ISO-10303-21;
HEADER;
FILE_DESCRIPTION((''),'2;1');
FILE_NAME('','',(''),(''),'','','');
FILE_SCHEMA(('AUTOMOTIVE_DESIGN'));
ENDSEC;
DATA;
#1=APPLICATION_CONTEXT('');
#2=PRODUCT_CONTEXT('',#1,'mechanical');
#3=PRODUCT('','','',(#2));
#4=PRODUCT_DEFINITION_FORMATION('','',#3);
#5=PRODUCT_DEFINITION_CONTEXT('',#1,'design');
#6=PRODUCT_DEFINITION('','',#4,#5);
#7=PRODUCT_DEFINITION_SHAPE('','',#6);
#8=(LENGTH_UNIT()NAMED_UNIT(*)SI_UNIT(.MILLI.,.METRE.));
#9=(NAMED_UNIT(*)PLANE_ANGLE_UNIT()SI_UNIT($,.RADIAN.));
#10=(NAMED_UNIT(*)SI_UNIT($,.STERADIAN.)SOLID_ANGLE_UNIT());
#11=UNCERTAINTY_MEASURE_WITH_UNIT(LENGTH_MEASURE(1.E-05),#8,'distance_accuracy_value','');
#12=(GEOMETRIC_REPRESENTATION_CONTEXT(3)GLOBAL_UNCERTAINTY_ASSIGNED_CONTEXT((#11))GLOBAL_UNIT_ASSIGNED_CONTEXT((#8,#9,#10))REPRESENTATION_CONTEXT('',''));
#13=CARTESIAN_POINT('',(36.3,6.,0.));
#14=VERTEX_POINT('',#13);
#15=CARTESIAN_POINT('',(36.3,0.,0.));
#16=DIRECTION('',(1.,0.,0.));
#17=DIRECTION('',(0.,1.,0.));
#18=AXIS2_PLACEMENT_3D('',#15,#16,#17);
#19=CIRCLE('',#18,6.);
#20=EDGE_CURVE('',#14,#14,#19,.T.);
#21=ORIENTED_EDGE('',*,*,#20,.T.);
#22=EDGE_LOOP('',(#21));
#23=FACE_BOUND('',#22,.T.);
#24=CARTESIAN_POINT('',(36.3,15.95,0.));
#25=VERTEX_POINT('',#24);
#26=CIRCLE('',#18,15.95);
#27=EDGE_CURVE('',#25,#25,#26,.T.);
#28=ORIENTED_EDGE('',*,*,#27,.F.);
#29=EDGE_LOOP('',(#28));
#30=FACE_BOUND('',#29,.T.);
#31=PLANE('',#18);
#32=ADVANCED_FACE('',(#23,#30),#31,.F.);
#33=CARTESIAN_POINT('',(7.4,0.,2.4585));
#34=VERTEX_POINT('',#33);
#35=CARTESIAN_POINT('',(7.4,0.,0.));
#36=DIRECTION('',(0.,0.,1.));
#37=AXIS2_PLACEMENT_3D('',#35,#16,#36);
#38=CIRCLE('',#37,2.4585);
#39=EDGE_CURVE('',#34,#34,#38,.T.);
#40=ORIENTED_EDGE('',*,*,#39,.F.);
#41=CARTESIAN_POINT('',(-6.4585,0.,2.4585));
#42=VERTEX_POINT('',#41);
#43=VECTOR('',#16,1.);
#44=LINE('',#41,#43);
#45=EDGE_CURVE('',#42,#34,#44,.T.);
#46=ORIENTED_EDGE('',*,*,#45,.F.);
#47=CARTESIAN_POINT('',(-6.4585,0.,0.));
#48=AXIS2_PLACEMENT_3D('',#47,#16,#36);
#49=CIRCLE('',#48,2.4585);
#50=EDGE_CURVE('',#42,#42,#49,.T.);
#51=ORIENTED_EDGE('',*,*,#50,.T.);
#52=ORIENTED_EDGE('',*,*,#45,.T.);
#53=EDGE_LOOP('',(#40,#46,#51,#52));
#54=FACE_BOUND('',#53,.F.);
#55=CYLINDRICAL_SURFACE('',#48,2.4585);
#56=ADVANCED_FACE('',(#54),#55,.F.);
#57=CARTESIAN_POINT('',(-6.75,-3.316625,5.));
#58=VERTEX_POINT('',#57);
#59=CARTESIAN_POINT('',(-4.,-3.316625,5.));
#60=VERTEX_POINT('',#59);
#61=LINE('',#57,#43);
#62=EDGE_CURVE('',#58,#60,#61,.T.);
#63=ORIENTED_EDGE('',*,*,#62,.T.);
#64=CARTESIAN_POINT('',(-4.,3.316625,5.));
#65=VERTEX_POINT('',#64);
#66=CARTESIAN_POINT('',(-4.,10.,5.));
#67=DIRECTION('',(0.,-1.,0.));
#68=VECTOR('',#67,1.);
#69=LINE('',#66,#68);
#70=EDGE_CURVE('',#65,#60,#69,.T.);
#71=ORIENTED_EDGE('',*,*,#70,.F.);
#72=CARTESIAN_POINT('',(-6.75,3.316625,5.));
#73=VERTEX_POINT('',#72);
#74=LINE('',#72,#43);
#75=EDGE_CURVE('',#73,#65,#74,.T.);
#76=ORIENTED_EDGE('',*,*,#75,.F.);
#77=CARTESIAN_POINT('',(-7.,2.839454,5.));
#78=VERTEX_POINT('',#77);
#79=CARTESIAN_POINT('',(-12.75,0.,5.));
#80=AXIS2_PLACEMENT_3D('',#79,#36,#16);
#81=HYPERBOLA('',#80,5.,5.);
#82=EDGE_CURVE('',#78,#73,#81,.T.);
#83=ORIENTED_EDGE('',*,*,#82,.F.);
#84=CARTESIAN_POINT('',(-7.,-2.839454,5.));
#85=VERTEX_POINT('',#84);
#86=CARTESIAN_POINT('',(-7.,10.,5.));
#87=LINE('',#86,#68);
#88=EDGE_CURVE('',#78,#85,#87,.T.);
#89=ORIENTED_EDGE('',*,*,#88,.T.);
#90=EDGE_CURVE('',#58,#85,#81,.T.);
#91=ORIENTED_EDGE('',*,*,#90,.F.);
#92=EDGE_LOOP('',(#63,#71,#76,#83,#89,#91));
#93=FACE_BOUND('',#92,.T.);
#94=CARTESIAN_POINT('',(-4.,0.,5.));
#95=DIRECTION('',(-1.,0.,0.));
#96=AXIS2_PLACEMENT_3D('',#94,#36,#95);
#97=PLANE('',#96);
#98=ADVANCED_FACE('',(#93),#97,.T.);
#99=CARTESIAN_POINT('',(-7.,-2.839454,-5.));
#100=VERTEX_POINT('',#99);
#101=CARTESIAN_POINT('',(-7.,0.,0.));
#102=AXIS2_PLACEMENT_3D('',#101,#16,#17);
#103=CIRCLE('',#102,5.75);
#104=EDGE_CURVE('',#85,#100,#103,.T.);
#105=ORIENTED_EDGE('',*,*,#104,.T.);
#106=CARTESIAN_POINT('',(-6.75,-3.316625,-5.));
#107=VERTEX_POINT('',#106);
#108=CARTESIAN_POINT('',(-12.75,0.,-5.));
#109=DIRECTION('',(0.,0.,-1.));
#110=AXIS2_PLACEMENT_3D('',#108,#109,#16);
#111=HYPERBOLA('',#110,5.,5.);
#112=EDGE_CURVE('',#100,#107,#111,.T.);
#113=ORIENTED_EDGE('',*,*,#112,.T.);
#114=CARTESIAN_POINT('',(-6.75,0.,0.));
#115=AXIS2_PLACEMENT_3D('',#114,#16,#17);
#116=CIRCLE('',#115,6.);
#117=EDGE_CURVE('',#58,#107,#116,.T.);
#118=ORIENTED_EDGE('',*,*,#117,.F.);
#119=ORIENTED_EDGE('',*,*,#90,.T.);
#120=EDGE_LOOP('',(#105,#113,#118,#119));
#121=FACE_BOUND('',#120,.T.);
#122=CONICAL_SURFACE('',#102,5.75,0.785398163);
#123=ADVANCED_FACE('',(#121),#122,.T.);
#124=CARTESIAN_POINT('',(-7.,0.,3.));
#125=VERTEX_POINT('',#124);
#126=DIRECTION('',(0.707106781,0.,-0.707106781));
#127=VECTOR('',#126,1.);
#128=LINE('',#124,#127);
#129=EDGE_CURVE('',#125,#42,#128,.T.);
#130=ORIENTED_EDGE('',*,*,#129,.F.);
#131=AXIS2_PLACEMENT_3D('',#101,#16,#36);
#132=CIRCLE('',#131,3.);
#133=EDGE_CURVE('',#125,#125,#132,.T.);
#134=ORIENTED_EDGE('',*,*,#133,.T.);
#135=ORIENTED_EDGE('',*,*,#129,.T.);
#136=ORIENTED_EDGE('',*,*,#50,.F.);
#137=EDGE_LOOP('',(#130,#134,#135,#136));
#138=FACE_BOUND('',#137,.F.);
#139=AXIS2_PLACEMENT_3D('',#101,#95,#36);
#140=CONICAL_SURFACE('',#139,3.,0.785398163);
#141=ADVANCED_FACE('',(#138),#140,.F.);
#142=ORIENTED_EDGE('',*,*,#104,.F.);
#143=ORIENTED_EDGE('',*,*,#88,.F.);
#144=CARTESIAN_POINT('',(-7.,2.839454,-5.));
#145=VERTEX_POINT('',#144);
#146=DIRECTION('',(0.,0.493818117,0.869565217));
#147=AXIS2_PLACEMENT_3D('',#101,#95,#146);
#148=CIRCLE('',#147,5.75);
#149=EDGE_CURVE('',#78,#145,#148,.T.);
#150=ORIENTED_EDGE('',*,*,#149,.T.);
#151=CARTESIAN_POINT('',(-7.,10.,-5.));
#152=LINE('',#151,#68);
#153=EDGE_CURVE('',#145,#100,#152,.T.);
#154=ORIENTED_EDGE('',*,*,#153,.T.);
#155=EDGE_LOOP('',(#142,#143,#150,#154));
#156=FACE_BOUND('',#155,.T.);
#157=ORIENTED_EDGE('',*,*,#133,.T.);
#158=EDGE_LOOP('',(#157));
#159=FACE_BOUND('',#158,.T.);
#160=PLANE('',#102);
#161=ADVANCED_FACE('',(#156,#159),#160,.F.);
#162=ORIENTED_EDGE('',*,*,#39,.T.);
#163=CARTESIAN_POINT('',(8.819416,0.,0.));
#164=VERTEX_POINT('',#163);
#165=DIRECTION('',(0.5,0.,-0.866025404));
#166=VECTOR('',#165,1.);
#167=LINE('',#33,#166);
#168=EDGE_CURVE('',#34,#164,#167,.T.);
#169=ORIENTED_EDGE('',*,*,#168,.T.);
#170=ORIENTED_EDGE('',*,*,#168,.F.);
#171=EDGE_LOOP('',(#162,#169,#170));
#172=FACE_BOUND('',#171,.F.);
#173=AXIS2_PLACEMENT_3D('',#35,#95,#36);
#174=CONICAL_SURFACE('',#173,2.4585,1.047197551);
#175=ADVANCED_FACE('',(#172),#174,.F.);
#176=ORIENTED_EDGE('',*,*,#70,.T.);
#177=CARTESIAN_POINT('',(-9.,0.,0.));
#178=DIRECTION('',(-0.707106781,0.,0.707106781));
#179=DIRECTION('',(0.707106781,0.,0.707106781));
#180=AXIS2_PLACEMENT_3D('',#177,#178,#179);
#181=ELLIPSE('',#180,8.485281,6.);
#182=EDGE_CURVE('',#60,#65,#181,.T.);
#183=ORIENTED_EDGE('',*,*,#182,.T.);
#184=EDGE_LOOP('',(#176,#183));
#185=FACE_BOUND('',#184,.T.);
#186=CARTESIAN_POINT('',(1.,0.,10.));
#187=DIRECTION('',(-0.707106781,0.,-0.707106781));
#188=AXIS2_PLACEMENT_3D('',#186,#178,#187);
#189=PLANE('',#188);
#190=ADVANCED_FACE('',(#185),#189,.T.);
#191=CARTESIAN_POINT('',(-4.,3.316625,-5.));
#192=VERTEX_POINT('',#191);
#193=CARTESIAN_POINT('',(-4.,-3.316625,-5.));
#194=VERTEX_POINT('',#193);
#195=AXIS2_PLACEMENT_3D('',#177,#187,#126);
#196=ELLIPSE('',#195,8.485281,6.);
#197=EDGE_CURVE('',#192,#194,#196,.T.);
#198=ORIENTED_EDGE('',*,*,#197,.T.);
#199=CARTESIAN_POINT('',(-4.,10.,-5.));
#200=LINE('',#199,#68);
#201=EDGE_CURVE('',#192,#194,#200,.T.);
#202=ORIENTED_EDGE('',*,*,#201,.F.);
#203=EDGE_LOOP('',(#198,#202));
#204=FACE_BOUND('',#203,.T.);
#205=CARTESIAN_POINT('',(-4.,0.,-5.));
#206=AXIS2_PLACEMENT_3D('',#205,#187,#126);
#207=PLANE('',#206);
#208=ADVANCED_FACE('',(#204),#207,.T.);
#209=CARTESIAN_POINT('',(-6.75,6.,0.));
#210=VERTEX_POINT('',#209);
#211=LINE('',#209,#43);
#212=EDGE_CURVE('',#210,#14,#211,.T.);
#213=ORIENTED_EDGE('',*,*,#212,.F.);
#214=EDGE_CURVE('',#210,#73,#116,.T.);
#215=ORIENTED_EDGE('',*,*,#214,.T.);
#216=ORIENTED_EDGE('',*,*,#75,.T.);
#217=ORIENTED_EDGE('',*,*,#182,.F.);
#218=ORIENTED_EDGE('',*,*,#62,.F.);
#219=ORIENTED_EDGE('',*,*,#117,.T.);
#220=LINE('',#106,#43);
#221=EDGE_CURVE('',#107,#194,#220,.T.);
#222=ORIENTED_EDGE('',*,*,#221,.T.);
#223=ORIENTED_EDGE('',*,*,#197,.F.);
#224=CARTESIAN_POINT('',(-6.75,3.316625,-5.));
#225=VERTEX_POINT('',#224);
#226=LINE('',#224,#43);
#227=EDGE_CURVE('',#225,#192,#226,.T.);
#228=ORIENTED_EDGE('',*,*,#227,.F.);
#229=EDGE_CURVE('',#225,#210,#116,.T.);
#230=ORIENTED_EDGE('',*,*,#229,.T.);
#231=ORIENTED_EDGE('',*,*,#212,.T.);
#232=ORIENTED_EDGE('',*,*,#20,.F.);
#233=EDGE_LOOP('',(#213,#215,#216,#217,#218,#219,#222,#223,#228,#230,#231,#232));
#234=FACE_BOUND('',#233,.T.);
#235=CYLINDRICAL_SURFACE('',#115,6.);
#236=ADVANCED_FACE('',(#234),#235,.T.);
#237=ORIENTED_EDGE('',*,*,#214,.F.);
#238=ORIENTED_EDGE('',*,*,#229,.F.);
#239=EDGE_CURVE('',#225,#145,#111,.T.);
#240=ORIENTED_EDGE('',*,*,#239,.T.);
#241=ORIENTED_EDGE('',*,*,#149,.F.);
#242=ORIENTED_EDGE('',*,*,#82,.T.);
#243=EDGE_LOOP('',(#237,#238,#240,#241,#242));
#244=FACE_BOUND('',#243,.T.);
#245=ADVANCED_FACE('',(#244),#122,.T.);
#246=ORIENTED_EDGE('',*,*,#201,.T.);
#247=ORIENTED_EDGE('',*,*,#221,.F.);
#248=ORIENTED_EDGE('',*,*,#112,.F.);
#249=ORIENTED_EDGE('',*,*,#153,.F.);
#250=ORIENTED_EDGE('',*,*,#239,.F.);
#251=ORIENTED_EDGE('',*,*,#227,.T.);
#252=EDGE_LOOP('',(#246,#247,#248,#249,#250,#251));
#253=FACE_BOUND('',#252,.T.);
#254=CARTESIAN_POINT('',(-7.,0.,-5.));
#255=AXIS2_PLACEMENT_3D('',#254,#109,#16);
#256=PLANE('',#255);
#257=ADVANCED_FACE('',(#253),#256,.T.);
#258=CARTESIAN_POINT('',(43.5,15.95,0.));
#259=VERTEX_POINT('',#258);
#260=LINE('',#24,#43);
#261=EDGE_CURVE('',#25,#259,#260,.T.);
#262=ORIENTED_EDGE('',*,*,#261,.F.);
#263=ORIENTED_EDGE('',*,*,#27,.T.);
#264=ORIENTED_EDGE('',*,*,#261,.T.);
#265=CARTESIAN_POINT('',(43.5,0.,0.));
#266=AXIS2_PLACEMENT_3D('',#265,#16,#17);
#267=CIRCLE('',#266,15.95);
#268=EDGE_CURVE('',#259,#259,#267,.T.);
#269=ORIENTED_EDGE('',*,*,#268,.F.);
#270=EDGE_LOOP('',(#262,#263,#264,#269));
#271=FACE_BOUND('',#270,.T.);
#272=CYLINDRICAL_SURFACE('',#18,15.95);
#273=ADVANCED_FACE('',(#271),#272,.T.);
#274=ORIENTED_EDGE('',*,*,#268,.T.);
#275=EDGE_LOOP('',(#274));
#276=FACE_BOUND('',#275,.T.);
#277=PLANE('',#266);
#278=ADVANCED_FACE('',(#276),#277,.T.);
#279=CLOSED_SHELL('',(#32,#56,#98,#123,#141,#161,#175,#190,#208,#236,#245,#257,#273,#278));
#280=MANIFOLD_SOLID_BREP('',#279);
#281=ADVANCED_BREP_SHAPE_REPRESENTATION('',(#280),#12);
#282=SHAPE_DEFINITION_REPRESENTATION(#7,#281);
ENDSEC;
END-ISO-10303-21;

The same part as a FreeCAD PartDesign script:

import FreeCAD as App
import Part
import Sketcher
from FreeCAD import Vector
Q = App.Units.Quantity


def add_polygon(sketch, points):
    """Adds a closed chain of lines whose ends are joined by coincident constraints."""
    first, n = sketch.GeometryCount, len(points)
    for a, b in zip(points, points[1:] + points[:1]):
        sketch.addGeometry(Part.LineSegment(App.Vector(*a, 0), App.Vector(*b, 0)), False)
    for i in range(n):
        sketch.addConstraint(Sketcher.Constraint("Coincident", first + i, 2, first + (i + 1) % n, 1))

doc = App.newDocument("Part")
body = doc.addObject("PartDesign::Body", "Body")

sketch1 = body.newObject("Sketcher::SketchObject", "Sketch")
sketch1.AttachmentSupport = (doc.getObject("XY_Plane"), [""])
sketch1.MapMode = "FlatFace"
add_polygon(sketch1, [(-7, 0), (0, 0), (0, 6), (-6.75, 6), (-7, 5.75)])
sketch1.addConstraint(Sketcher.Constraint("Horizontal", 0))
sketch1.addConstraint(Sketcher.Constraint("Vertical", 1))
sketch1.addConstraint(Sketcher.Constraint("Horizontal", 2))
sketch1.addConstraint(Sketcher.Constraint("Vertical", 4))
sketch1.addConstraint(Sketcher.Constraint("Coincident", 0, 2, -1, 1))
sketch1.addConstraint(Sketcher.Constraint("DistanceX", 0, 1, 0, 2, 7.0))
sketch1.addConstraint(Sketcher.Constraint("DistanceY", 1, 1, 1, 2, 6.0))
sketch1.addConstraint(Sketcher.Constraint("Angle", 3, Q("-135 deg")))
sketch1.addConstraint(Sketcher.Constraint("DistanceX", 2, 2, 2, 1, 6.75))
revolution = body.newObject("PartDesign::Revolution", "Revolution")
revolution.Profile = sketch1
revolution.ReferenceAxis = (sketch1, ["H_Axis"])
revolution.Angle = 360

sketch2 = body.newObject("Sketcher::SketchObject", "Sketch001")
sketch2.AttachmentSupport = (doc.getObject("XY_Plane"), [""])
sketch2.MapMode = "FlatFace"
add_polygon(sketch2, [(0, 0), (43.5, 0), (43.5, 15.95), (36.3, 15.95), (36.3, 6), (0, 6)])
sketch2.addConstraint(Sketcher.Constraint("Horizontal", 0))
sketch2.addConstraint(Sketcher.Constraint("Vertical", 1))
sketch2.addConstraint(Sketcher.Constraint("Horizontal", 2))
sketch2.addConstraint(Sketcher.Constraint("Vertical", 3))
sketch2.addConstraint(Sketcher.Constraint("Horizontal", 4))
sketch2.addConstraint(Sketcher.Constraint("Vertical", 5))
sketch2.addConstraint(Sketcher.Constraint("Coincident", 5, 2, -1, 1))
sketch2.addConstraint(Sketcher.Constraint("DistanceY", 5, 2, 5, 1, 6.0))
sketch2.addConstraint(Sketcher.Constraint("DistanceX", 0, 1, 0, 2, 43.5))
sketch2.addConstraint(Sketcher.Constraint("DistanceX", 2, 2, 2, 1, 7.2))
sketch2.addConstraint(Sketcher.Constraint("DistanceY", 1, 1, 1, 2, 15.95))
revolution2 = body.newObject("PartDesign::Revolution", "Revolution001")
revolution2.Profile = sketch2
revolution2.ReferenceAxis = (sketch2, ["H_Axis"])
revolution2.Angle = 360

sketch3 = body.newObject("Sketcher::SketchObject", "Sketch002")
sketch3.AttachmentSupport = (doc.getObject("XZ_Plane"), [""])
sketch3.MapMode = "FlatFace"
add_polygon(sketch3, [(1, -10), (-17, -10), (-17, 10), (1, 10), (-4, 5), (-7, 5), (-7, -5), (-4, -5)])
sketch3.addConstraint(Sketcher.Constraint("Horizontal", 0))
sketch3.addConstraint(Sketcher.Constraint("Vertical", 1))
sketch3.addConstraint(Sketcher.Constraint("Horizontal", 2))
sketch3.addConstraint(Sketcher.Constraint("Horizontal", 4))
sketch3.addConstraint(Sketcher.Constraint("Vertical", 5))
sketch3.addConstraint(Sketcher.Constraint("Horizontal", 6))
sketch3.addConstraint(Sketcher.Constraint("Symmetric", 3, 2, 6, 2, -1))
sketch3.addConstraint(Sketcher.Constraint("Symmetric", 2, 2, 7, 2, -1))
sketch3.addConstraint(Sketcher.Constraint("Perpendicular", 3, 7))
sketch3.addConstraint(Sketcher.Constraint("DistanceX", 0, 2, 0, 1, 18.0))
sketch3.addConstraint(Sketcher.Constraint("DistanceX", 4, 2, 4, 1, 3.0))
sketch3.addConstraint(Sketcher.Constraint("DistanceY", 1, 1, 1, 2, 20.0))
sketch3.addConstraint(Sketcher.Constraint("DistanceY", 5, 2, 5, 1, 10.0))
sketch3.addConstraint(Sketcher.Constraint("DistanceX", 0, 2, -1, 1, 17.0))
pocket1 = body.newObject("PartDesign::Pocket", "Pocket")
pocket1.Profile = sketch3
pocket1.Length = 20
pocket1.Midplane = True

sketch4 = body.newObject("Sketcher::SketchObject", "Sketch003")
sketch4.AttachmentSupport = (doc.getObject("YZ_Plane"), [""])
sketch4.MapMode = "FlatFace"
sketch4.AttachmentOffset = App.Placement(Vector(0, 0, -7), App.Rotation())
sketch4.addGeometry(Part.Circle(Vector(0, 0, 0), Vector(0, 0, 1), 2.4585), False)
sketch4.addConstraint(Sketcher.Constraint("Coincident", 0, 3, -1, 1))
sketch4.addConstraint(Sketcher.Constraint("Diameter", 0, 4.917))
doc.recompute()
hole = body.newObject("PartDesign::Hole", "Hole")
hole.Profile = sketch4
hole.ThreadType = "None"
hole.Diameter = 4.917
hole.DepthType = "Dimension"
hole.Depth = 14.4
hole.DrillPoint = "Angled"
hole.DrillPointAngle = 120
hole.HoleCutType = "Countersink"
hole.HoleCutDiameter = 6
hole.HoleCutCountersinkAngle = 90
hole.Reversed = True

doc.recompute()
